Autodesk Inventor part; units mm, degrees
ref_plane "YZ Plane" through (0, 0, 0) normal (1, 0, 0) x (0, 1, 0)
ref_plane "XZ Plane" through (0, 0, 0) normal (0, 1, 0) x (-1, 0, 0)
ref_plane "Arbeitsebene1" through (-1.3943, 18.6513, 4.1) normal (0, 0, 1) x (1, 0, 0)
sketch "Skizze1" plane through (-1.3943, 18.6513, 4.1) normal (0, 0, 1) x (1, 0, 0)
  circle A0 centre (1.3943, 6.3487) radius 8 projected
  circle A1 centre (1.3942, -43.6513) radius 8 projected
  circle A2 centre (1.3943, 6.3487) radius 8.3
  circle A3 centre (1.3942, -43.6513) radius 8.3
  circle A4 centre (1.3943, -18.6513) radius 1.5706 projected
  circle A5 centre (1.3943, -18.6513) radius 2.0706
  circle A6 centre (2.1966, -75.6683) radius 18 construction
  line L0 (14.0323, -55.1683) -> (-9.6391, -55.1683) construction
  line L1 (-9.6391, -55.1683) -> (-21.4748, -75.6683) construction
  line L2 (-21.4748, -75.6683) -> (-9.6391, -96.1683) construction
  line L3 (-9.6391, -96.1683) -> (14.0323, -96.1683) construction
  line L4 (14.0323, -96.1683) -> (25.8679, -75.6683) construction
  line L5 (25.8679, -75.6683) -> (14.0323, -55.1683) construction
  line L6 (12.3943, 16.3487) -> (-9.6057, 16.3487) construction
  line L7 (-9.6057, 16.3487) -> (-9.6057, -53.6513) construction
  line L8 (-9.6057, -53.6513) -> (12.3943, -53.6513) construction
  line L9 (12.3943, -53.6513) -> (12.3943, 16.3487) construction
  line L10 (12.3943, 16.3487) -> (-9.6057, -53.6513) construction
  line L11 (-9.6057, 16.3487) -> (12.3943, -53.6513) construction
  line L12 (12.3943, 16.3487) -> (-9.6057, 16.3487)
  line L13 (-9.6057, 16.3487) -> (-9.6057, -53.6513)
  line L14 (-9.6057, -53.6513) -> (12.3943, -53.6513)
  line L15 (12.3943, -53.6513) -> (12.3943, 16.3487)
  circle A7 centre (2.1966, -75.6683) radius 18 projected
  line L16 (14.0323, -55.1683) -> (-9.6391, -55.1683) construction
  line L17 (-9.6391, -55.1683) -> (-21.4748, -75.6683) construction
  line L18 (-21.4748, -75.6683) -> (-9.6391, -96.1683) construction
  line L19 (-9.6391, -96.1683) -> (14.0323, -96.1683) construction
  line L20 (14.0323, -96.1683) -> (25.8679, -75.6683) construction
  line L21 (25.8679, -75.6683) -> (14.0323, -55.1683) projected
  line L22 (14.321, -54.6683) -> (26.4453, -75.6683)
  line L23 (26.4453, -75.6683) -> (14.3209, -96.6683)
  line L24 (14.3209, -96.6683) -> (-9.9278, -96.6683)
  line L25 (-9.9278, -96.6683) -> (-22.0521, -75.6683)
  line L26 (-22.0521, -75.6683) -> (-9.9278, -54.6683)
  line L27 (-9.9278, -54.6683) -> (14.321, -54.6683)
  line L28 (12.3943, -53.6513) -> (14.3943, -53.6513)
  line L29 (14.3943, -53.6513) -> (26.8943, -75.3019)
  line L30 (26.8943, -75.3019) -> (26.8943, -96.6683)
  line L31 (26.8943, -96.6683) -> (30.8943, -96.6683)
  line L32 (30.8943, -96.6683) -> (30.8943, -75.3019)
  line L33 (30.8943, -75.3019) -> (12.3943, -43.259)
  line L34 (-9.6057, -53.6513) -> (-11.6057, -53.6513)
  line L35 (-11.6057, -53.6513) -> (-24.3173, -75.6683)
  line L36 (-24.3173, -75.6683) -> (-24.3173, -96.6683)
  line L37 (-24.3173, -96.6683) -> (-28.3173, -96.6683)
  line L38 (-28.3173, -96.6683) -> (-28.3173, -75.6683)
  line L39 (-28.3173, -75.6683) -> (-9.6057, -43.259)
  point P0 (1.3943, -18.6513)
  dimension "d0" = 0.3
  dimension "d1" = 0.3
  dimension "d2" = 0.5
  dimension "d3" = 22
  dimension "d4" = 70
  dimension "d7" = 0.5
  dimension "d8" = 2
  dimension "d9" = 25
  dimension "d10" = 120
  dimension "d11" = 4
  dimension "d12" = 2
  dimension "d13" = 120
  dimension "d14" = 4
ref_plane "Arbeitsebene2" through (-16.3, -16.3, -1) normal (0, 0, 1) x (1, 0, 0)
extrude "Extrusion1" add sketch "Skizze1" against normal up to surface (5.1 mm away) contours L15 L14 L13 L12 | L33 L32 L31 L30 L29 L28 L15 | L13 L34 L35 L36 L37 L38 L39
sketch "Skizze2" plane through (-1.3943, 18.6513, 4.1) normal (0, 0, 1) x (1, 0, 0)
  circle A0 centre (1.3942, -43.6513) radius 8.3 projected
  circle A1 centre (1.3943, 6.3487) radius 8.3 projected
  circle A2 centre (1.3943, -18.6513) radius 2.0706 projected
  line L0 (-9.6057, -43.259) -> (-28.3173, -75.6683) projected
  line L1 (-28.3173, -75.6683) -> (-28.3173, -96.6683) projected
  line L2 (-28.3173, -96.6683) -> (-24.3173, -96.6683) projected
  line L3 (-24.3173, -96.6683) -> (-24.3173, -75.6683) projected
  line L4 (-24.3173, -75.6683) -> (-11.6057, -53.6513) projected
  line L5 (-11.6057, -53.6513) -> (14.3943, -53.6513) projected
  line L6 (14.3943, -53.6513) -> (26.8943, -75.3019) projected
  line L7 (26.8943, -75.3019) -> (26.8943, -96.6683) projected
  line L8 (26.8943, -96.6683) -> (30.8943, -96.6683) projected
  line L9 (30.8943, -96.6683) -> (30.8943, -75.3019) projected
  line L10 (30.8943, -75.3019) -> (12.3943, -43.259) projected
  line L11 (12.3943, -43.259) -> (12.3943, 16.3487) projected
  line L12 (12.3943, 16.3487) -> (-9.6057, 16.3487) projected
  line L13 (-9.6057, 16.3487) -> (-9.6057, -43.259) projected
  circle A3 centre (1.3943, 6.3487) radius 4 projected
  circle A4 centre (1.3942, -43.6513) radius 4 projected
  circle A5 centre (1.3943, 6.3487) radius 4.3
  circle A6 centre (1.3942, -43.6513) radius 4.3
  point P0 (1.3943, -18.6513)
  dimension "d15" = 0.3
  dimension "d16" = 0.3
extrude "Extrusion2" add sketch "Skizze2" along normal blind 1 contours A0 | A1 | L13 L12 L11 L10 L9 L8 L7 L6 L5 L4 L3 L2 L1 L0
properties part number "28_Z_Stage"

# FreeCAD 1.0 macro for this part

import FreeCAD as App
import Part
import Sketcher

V = App.Vector
Q = App.Units.Quantity

doc = App.newDocument("Part")
body = doc.addObject("PartDesign::Body", "Body")

sketch1 = doc.addObject("Sketcher::SketchObject", "Sketch")
body.addObject(sketch1)
sketch1.AttachmentSupport = (doc.XY_Plane, [""])
sketch1.MapMode = "FlatFace"
sketch1.AttachmentOffset = App.Placement(V(0, 0, 4.1), App.Rotation())
sketch1.addGeometry(Part.LineSegment(V(11, -24.6, 0), V(11, 35, 0)), False)
sketch1.addGeometry(Part.LineSegment(V(11, 35, 0), V(-11, 35, 0)), False)
sketch1.addGeometry(Part.LineSegment(V(-11, 35, 0), V(-11, -24.6, 0)), False)
sketch1.addGeometry(Part.LineSegment(V(-11, -24.6, 0), V(-29.7, -57, 0)), False)
sketch1.addGeometry(Part.LineSegment(V(-29.7, -57, 0), V(-29.7, -78, 0)), False)
sketch1.addGeometry(Part.LineSegment(V(-29.7, -78, 0), V(-25.7, -78, 0)), False)
sketch1.addGeometry(Part.LineSegment(V(-25.7, -78, 0), V(-25.7, -57, 0)), False)
sketch1.addGeometry(Part.LineSegment(V(-25.7, -57, 0), V(-13, -35, 0)), False)
sketch1.addGeometry(Part.LineSegment(V(-13, -35, 0), V(13, -35, 0)), False)
sketch1.addGeometry(Part.LineSegment(V(13, -35, 0), V(25.5, -56.7, 0)), False)
sketch1.addGeometry(Part.LineSegment(V(25.5, -56.7, 0), V(25.5, -78, 0)), False)
sketch1.addGeometry(Part.LineSegment(V(25.5, -78, 0), V(29.5, -78, 0)), False)
sketch1.addGeometry(Part.LineSegment(V(29.5, -78, 0), V(29.5, -56.7, 0)), False)
sketch1.addGeometry(Part.LineSegment(V(29.5, -56.7, 0), V(11, -24.6, 0)), False)
sketch1.addGeometry(Part.Circle(V(0, -25, 0), V(0, 0, 1), 8.3), False)
sketch1.addGeometry(Part.Circle(V(0, 0, 0), V(0, 0, 1), 2.1), False)
sketch1.addGeometry(Part.Circle(V(0, 25, 0), V(0, 0, 1), 8.3), False)
sketch1.addConstraint(Sketcher.Constraint("Coincident", 0, 2, 1, 1))
sketch1.addConstraint(Sketcher.Constraint("Coincident", 1, 2, 2, 1))
sketch1.addConstraint(Sketcher.Constraint("Coincident", 2, 2, 3, 1))
sketch1.addConstraint(Sketcher.Constraint("Coincident", 3, 2, 4, 1))
sketch1.addConstraint(Sketcher.Constraint("Coincident", 4, 2, 5, 1))
sketch1.addConstraint(Sketcher.Constraint("Coincident", 5, 2, 6, 1))
sketch1.addConstraint(Sketcher.Constraint("Coincident", 6, 2, 7, 1))
sketch1.addConstraint(Sketcher.Constraint("Coincident", 7, 2, 8, 1))
sketch1.addConstraint(Sketcher.Constraint("Coincident", 8, 2, 9, 1))
sketch1.addConstraint(Sketcher.Constraint("Coincident", 9, 2, 10, 1))
sketch1.addConstraint(Sketcher.Constraint("Coincident", 10, 2, 11, 1))
sketch1.addConstraint(Sketcher.Constraint("Coincident", 11, 2, 12, 1))
sketch1.addConstraint(Sketcher.Constraint("Coincident", 12, 2, 13, 1))
sketch1.addConstraint(Sketcher.Constraint("Coincident", 13, 2, 0, 1))
sketch1.addConstraint(Sketcher.Constraint("Vertical", 0))
sketch1.addConstraint(Sketcher.Constraint("Horizontal", 1))
sketch1.addConstraint(Sketcher.Constraint("Vertical", 2))
sketch1.addConstraint(Sketcher.Constraint("Vertical", 4))
sketch1.addConstraint(Sketcher.Constraint("Horizontal", 5))
sketch1.addConstraint(Sketcher.Constraint("Vertical", 6))
sketch1.addConstraint(Sketcher.Constraint("Horizontal", 8))
sketch1.addConstraint(Sketcher.Constraint("Vertical", 10))
sketch1.addConstraint(Sketcher.Constraint("Horizontal", 11))
sketch1.addConstraint(Sketcher.Constraint("Vertical", 12))
sketch1.addConstraint(Sketcher.Constraint("Coincident", 15, 3, -1, 1))
sketch1.addConstraint(Sketcher.Constraint("Equal", 14, 16))
sketch1.addConstraint(Sketcher.Constraint("Symmetric", 14, 3, 16, 3, -1, 1))
sketch1.addConstraint(Sketcher.Constraint("Symmetric", 2, 2, 13, 2, -2))
sketch1.addConstraint(Sketcher.Constraint("PointOnObject", 14, 3, -2))
sketch1.addConstraint(Sketcher.Constraint("Parallel", 3, 7))
sketch1.addConstraint(Sketcher.Constraint("Parallel", 9, 13))
sketch1.addConstraint(Sketcher.Constraint("Horizontal", 3, 2, 6, 2))
sketch1.addConstraint(Sketcher.Constraint("Horizontal", 5, 2, 10, 2))
sketch1.addConstraint(Sketcher.Constraint("Horizontal", 9, 2, 12, 2))
sketch1.addConstraint(Sketcher.Constraint("Equal", 5, 11))
sketch1.addConstraint(Sketcher.Constraint("DistanceX", 1, 2, 1, 1, Q("22 mm")))
sketch1.addConstraint(Sketcher.Constraint("DistanceX", 5, 1, 5, 2, Q("4 mm")))
sketch1.addConstraint(Sketcher.Constraint("Angle", 3, Q("-120 deg")))
sketch1.addConstraint(Sketcher.Constraint("Angle", 13, Q("120 deg")))
sketch1.addConstraint(Sketcher.Constraint("Distance", 9, Q("25 mm")))
sketch1.addConstraint(Sketcher.Constraint("DistanceY", 14, 3, -1, 1, Q("25 mm")))
sketch1.addConstraint(Sketcher.Constraint("DistanceX", 7, 2, 2, 2, Q("2 mm")))
sketch1.addConstraint(Sketcher.Constraint("Diameter", 14, Q("16.6 mm")))
sketch1.addConstraint(Sketcher.Constraint("DistanceY", 4, 2, 4, 1, Q("21 mm")))
sketch1.addConstraint(Sketcher.Constraint("DistanceY", -1, 1, 0, 2, Q("35 mm")))
sketch1.addConstraint(Sketcher.Constraint("DistanceY", 7, 2, -1, 1, Q("35 mm")))
sketch1.addConstraint(Sketcher.Constraint("Diameter", 15, Q("4.1412 mm")))
sketch1.addConstraint(Sketcher.Constraint("Distance", 3, Q("37.423 mm")))
pad1 = doc.addObject("PartDesign::Pad", "Pad")
body.addObject(pad1)
pad1.Profile = sketch1
pad1.Length = 5.1
pad1.Reversed = True

sketch2 = doc.addObject("Sketcher::SketchObject", "Sketch001")
body.addObject(sketch2)
sketch2.AttachmentSupport = (doc.XY_Plane, [""])
sketch2.MapMode = "FlatFace"
sketch2.AttachmentOffset = App.Placement(V(0, 0, 4.1), App.Rotation())
sketch2.addGeometry(Part.LineSegment(V(-11, 35, 0), V(-11, -24.6, 0)), False)
sketch2.addGeometry(Part.LineSegment(V(-11, -24.6, 0), V(-29.7, -57, 0)), False)
sketch2.addGeometry(Part.LineSegment(V(-29.7, -57, 0), V(-29.7, -78, 0)), False)
sketch2.addGeometry(Part.LineSegment(V(-29.7, -78, 0), V(-25.7, -78, 0)), False)
sketch2.addGeometry(Part.LineSegment(V(-25.7, -78, 0), V(-25.7, -57, 0)), False)
sketch2.addGeometry(Part.LineSegment(V(-25.7, -57, 0), V(-13, -35, 0)), False)
sketch2.addGeometry(Part.LineSegment(V(-13, -35, 0), V(13, -35, 0)), False)
sketch2.addGeometry(Part.LineSegment(V(13, -35, 0), V(25.5, -56.7, 0)), False)
sketch2.addGeometry(Part.LineSegment(V(25.5, -56.7, 0), V(25.5, -78, 0)), False)
sketch2.addGeometry(Part.LineSegment(V(25.5, -78, 0), V(29.5, -78, 0)), False)
sketch2.addGeometry(Part.LineSegment(V(29.5, -78, 0), V(29.5, -56.7, 0)), False)
sketch2.addGeometry(Part.LineSegment(V(29.5, -56.7, 0), V(11, -24.6, 0)), False)
sketch2.addGeometry(Part.LineSegment(V(11, -24.6, 0), V(11, 35, 0)), False)
sketch2.addGeometry(Part.LineSegment(V(11, 35, 0), V(-11, 35, 0)), False)
sketch2.addGeometry(Part.Circle(V(0, -25, 0), V(0, 0, 1), 4.3), False)
sketch2.addGeometry(Part.Circle(V(0, 0, 0), V(0, 0, 1), 2.1), False)
sketch2.addGeometry(Part.Circle(V(0, 25, 0), V(0, 0, 1), 4.3), False)
sketch2.addConstraint(Sketcher.Constraint("Coincident", 0, 2, 1, 1))
sketch2.addConstraint(Sketcher.Constraint("Coincident", 1, 2, 2, 1))
sketch2.addConstraint(Sketcher.Constraint("Coincident", 2, 2, 3, 1))
sketch2.addConstraint(Sketcher.Constraint("Coincident", 3, 2, 4, 1))
sketch2.addConstraint(Sketcher.Constraint("Coincident", 4, 2, 5, 1))
sketch2.addConstraint(Sketcher.Constraint("Coincident", 5, 2, 6, 1))
sketch2.addConstraint(Sketcher.Constraint("Coincident", 6, 2, 7, 1))
sketch2.addConstraint(Sketcher.Constraint("Coincident", 7, 2, 8, 1))
sketch2.addConstraint(Sketcher.Constraint("Coincident", 8, 2, 9, 1))
sketch2.addConstraint(Sketcher.Constraint("Coincident", 9, 2, 10, 1))
sketch2.addConstraint(Sketcher.Constraint("Coincident", 10, 2, 11, 1))
sketch2.addConstraint(Sketcher.Constraint("Coincident", 11, 2, 12, 1))
sketch2.addConstraint(Sketcher.Constraint("Coincident", 12, 2, 13, 1))
sketch2.addConstraint(Sketcher.Constraint("Coincident", 13, 2, 0, 1))
sketch2.addConstraint(Sketcher.Constraint("Vertical", 0))
sketch2.addConstraint(Sketcher.Constraint("Vertical", 2))
sketch2.addConstraint(Sketcher.Constraint("Horizontal", 3))
sketch2.addConstraint(Sketcher.Constraint("Vertical", 4))
sketch2.addConstraint(Sketcher.Constraint("Horizontal", 6))
sketch2.addConstraint(Sketcher.Constraint("Vertical", 8))
sketch2.addConstraint(Sketcher.Constraint("Horizontal", 9))
sketch2.addConstraint(Sketcher.Constraint("Vertical", 10))
sketch2.addConstraint(Sketcher.Constraint("Vertical", 12))
sketch2.addConstraint(Sketcher.Constraint("Horizontal", 13))
sketch2.addConstraint(Sketcher.Constraint("Coincident", 15, 3, -1, 1))
sketch2.addConstraint(Sketcher.Constraint("Equal", 14, 16))
sketch2.addConstraint(Sketcher.Constraint("Symmetric", 14, 3, 16, 3, -1, 1))
sketch2.addConstraint(Sketcher.Constraint("Symmetric", 0, 2, 11, 2, -2))
sketch2.addConstraint(Sketcher.Constraint("PointOnObject", 14, 3, -2))
sketch2.addConstraint(Sketcher.Constraint("Parallel", 1, 5))
sketch2.addConstraint(Sketcher.Constraint("Parallel", 7, 11))
sketch2.addConstraint(Sketcher.Constraint("Horizontal", 1, 2, 4, 2))
sketch2.addConstraint(Sketcher.Constraint("Horizontal", 3, 2, 8, 2))
sketch2.addConstraint(Sketcher.Constraint("Horizontal", 7, 2, 10, 2))
sketch2.addConstraint(Sketcher.Constraint("Equal", 3, 9))
sketch2.addConstraint(Sketcher.Constraint("Diameter", 14, Q("8.6 mm")))
sketch2.addConstraint(Sketcher.Constraint("DistanceX", 3, 1, 3, 2, Q("4 mm")))
sketch2.addConstraint(Sketcher.Constraint("DistanceX", 6, 1, 6, 2, Q("26 mm")))
sketch2.addConstraint(Sketcher.Constraint("DistanceX", 13, 2, 13, 1, Q("22 mm")))
sketch2.addConstraint(Sketcher.Constraint("DistanceY", 2, 2, 2, 1, Q("21 mm")))
sketch2.addConstraint(Sketcher.Constraint("Angle", 1, Q("-120 deg")))
sketch2.addConstraint(Sketcher.Constraint("Angle", 7, Q("-60 deg")))
sketch2.addConstraint(Sketcher.Constraint("Distance", 7, Q("25 mm")))
sketch2.addConstraint(Sketcher.Constraint("DistanceY", 14, 3, -1, 1, Q("25 mm")))
sketch2.addConstraint(Sketcher.Constraint("DistanceY", 5, 2, -1, 1, Q("35 mm")))
sketch2.addConstraint(Sketcher.Constraint("DistanceY", -1, 1, 12, 2, Q("35 mm")))
sketch2.addConstraint(Sketcher.Constraint("Diameter", 15, Q("4.1412 mm")))
sketch2.addConstraint(Sketcher.Constraint("Distance", 1, Q("37.423 mm")))
pad2 = doc.addObject("PartDesign::Pad", "Pad001")
body.addObject(pad2)
pad2.Profile = sketch2
pad2.Length = 1

doc.recompute()
